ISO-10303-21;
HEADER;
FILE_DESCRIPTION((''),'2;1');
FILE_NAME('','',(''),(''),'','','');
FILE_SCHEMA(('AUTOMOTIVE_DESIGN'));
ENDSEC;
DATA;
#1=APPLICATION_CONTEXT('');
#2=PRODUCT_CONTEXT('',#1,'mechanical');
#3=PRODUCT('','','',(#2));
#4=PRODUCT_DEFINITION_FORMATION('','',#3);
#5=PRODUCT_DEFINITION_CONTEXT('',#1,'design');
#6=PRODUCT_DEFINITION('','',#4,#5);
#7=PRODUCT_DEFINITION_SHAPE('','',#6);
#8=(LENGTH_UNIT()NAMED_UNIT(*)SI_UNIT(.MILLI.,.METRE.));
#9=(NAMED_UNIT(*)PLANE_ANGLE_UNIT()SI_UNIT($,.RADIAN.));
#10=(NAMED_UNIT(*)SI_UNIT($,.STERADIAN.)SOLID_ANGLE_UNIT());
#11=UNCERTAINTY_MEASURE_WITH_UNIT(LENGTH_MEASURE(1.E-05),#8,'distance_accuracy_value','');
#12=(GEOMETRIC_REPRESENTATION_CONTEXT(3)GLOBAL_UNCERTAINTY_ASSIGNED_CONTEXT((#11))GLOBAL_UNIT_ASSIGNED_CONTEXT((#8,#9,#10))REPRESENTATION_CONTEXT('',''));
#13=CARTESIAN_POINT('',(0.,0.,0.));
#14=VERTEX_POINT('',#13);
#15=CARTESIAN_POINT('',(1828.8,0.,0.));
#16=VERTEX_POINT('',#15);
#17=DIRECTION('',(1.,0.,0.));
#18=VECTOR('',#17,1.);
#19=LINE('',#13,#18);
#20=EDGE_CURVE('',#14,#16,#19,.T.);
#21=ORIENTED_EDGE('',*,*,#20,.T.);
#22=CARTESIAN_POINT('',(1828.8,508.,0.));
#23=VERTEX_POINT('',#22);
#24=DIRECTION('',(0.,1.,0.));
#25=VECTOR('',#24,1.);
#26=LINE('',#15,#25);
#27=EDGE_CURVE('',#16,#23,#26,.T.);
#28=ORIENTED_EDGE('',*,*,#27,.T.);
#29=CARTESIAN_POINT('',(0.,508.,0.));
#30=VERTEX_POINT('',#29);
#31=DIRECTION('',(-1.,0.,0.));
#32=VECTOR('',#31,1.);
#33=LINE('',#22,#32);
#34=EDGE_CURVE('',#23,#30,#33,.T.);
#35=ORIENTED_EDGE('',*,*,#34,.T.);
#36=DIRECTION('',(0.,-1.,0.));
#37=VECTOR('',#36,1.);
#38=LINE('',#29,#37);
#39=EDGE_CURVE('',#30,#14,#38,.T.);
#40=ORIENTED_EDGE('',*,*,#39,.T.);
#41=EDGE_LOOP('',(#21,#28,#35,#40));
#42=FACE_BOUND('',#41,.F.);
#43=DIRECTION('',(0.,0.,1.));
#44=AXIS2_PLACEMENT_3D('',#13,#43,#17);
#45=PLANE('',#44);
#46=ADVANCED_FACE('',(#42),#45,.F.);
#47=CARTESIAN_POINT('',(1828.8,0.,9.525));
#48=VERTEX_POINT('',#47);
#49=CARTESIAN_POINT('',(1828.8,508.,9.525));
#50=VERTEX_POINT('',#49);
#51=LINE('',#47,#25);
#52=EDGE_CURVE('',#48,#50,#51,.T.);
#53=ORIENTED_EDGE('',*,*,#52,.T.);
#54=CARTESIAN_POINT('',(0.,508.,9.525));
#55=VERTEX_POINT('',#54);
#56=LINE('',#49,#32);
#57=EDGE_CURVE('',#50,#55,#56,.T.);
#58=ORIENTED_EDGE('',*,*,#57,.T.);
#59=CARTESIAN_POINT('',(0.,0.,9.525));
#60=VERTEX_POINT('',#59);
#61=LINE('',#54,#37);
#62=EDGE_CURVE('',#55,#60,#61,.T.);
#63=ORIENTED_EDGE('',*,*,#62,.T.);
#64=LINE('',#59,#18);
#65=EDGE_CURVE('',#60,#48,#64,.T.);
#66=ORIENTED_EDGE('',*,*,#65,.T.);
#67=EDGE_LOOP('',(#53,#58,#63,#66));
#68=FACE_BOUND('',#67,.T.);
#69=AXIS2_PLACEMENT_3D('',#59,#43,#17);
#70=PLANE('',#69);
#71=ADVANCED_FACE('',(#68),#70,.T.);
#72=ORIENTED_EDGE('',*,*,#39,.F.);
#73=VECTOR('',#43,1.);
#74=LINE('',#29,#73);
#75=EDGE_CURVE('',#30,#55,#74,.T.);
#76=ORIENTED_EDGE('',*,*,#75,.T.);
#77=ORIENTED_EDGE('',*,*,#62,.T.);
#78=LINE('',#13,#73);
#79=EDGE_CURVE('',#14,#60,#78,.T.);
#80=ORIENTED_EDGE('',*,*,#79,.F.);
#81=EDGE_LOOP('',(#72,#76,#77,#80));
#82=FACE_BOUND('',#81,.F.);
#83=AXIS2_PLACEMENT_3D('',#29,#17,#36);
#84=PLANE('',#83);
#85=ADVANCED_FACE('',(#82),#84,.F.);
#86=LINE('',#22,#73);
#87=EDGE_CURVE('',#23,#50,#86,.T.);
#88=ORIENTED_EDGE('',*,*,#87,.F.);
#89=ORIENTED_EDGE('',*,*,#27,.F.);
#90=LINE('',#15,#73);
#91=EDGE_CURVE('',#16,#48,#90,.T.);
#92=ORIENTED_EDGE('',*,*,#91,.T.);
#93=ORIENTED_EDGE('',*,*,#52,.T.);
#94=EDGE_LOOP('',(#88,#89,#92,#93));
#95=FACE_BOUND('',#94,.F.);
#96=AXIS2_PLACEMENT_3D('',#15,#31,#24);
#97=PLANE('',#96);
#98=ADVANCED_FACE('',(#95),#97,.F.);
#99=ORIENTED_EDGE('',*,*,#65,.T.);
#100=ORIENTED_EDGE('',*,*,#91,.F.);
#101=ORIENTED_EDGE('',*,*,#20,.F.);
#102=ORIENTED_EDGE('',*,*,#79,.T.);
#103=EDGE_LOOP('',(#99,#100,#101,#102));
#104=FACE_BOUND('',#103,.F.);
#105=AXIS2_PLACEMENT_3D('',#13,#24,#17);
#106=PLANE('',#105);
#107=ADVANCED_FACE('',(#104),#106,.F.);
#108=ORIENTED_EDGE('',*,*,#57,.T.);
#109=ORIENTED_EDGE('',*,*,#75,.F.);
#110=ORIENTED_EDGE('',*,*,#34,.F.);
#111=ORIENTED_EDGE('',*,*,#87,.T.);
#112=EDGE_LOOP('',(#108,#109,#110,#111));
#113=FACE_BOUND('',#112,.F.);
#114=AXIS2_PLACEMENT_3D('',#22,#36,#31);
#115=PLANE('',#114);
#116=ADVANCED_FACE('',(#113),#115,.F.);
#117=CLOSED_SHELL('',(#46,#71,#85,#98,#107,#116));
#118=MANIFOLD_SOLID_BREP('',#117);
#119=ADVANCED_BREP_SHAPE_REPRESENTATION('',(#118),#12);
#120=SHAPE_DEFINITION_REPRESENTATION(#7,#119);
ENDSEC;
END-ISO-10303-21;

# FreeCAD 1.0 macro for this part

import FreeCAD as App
import Part
import Sketcher
Q = App.Units.Quantity


def add_polygon(sketch, points):
    """Adds a closed chain of lines whose ends are joined by coincident constraints."""
    first, n = sketch.GeometryCount, len(points)
    for a, b in zip(points, points[1:] + points[:1]):
        sketch.addGeometry(Part.LineSegment(App.Vector(*a, 0), App.Vector(*b, 0)), False)
    for i in range(n):
        sketch.addConstraint(Sketcher.Constraint("Coincident", first + i, 2, first + (i + 1) % n, 1))

doc = App.newDocument("Part")
body = doc.addObject("PartDesign::Body", "Body")

sketch1 = body.newObject("Sketcher::SketchObject", "Sketch")
sketch1.AttachmentSupport = (doc.getObject("XY_Plane"), [""])
sketch1.MapMode = "FlatFace"
add_polygon(sketch1, [(0, 508), (0, 0), (1829, 0), (1829, 508)])
sketch1.addConstraint([
    Sketcher.Constraint("Vertical", 0),
    Sketcher.Constraint("Horizontal", 1),
    Sketcher.Constraint("Vertical", 2),
    Sketcher.Constraint("Horizontal", 3),
    Sketcher.Constraint("Coincident", 0, 2, -1, 1),
    Sketcher.Constraint("DistanceX", 1, 1, 1, 2, Q("72 in")),
    Sketcher.Constraint("DistanceY", 0, 2, 0, 1, Q("20 in")),
])
pad1 = body.newObject("PartDesign::Pad", "Pad")
pad1.Profile = sketch1
pad1.Length = Q("0.375 in")

doc.recompute()
